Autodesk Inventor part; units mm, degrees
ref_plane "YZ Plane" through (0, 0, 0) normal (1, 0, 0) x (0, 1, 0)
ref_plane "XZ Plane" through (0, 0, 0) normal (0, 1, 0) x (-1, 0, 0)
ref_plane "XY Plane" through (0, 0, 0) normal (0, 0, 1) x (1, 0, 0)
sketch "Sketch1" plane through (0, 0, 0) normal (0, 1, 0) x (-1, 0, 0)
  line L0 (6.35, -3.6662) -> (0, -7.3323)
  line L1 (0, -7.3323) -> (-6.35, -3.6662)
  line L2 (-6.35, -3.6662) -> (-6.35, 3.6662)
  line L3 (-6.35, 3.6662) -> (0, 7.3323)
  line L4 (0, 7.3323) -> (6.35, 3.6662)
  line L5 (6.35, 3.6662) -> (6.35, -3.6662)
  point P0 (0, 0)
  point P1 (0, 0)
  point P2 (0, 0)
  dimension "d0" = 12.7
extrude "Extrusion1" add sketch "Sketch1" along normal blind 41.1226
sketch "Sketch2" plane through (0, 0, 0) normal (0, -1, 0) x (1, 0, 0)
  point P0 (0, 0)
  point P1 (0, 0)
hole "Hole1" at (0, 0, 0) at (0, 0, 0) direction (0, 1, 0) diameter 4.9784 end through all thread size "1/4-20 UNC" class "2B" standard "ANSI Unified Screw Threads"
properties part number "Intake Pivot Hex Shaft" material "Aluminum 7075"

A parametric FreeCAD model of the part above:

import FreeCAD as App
import Part
import Sketcher
from FreeCAD import Vector
Q = App.Units.Quantity

doc = App.newDocument("Part")
body = doc.addObject("PartDesign::Body", "Body")

sketch1 = body.newObject("Sketcher::SketchObject", "Sketch")
sketch1.AttachmentSupport = (doc.getObject("XZ_Plane"), [""])
sketch1.MapMode = "FlatFace"
sketch1.addGeometry([
    Part.LineSegment(Vector(0, -7, 0), Vector(-6, -4, 0)),
    Part.LineSegment(Vector(-6, -4, 0), Vector(-6, 4, 0)),
    Part.LineSegment(Vector(-6, 4, 0), Vector(0, 7, 0)),
    Part.LineSegment(Vector(0, 7, 0), Vector(6, 4, 0)),
    Part.LineSegment(Vector(6, 4, 0), Vector(6, -4, 0)),
    Part.LineSegment(Vector(6, -4, 0), Vector(0, -7, 0)),
], False)
sketch1.addConstraint([
    Sketcher.Constraint("Coincident", 0, 2, 1, 1),
    Sketcher.Constraint("Coincident", 1, 2, 2, 1),
    Sketcher.Constraint("Coincident", 2, 2, 3, 1),
    Sketcher.Constraint("Coincident", 3, 2, 4, 1),
    Sketcher.Constraint("Coincident", 4, 2, 5, 1),
    Sketcher.Constraint("Coincident", 5, 2, 0, 1),
    Sketcher.Constraint("Vertical", 1),
    Sketcher.Constraint("Vertical", 4),
    Sketcher.Constraint("Symmetric", 0, 2, 3, 2, -1, 1),
    Sketcher.Constraint("Symmetric", 2, 2, 5, 2, -1, 1),
    Sketcher.Constraint("PointOnObject", 2, 2, -2),
    Sketcher.Constraint("Parallel", 2, 5),
    Sketcher.Constraint("Horizontal", 1, 2, 3, 2),
    Sketcher.Constraint("DistanceX", 1, 2, 3, 2, Q("0.5 in")),
    Sketcher.Constraint("Angle", 0, Q("150.0005 deg")),
    Sketcher.Constraint("DistanceY", 0, 2, 2, 2, Q("0.433 in")),
])
pad1 = body.newObject("PartDesign::Pad", "Pad")
pad1.Profile = sketch1
pad1.Length = Q("1.619 in")
pad1.Reversed = True

sketch2 = body.newObject("Sketcher::SketchObject", "Sketch001")
sketch2.AttachmentSupport = (doc.getObject("XZ_Plane"), [""])
sketch2.MapMode = "FlatFace"
sketch2.addGeometry([
    Part.Circle(Vector(0, 0, 0), Vector(0, 0, 1), 2.5),
    Part.Circle(Vector(0, 0, 0), Vector(0, 0, 1), 2.5),
], False)
sketch2.addConstraint([
    Sketcher.Constraint("Coincident", 0, 3, -1, 1),
    Sketcher.Constraint("Coincident", 1, 3, -1, 1),
    Sketcher.Constraint("Equal", 0, 1),
    Sketcher.Constraint("Diameter", 0, Q("0.196 in")),
])
doc.recompute()
hole = body.newObject("PartDesign::Hole", "Hole")
hole.Profile = sketch2
hole.ThreadType = "None"
hole.Diameter = Q("0.196 in")
hole.DepthType = "ThroughAll"

doc.recompute()
